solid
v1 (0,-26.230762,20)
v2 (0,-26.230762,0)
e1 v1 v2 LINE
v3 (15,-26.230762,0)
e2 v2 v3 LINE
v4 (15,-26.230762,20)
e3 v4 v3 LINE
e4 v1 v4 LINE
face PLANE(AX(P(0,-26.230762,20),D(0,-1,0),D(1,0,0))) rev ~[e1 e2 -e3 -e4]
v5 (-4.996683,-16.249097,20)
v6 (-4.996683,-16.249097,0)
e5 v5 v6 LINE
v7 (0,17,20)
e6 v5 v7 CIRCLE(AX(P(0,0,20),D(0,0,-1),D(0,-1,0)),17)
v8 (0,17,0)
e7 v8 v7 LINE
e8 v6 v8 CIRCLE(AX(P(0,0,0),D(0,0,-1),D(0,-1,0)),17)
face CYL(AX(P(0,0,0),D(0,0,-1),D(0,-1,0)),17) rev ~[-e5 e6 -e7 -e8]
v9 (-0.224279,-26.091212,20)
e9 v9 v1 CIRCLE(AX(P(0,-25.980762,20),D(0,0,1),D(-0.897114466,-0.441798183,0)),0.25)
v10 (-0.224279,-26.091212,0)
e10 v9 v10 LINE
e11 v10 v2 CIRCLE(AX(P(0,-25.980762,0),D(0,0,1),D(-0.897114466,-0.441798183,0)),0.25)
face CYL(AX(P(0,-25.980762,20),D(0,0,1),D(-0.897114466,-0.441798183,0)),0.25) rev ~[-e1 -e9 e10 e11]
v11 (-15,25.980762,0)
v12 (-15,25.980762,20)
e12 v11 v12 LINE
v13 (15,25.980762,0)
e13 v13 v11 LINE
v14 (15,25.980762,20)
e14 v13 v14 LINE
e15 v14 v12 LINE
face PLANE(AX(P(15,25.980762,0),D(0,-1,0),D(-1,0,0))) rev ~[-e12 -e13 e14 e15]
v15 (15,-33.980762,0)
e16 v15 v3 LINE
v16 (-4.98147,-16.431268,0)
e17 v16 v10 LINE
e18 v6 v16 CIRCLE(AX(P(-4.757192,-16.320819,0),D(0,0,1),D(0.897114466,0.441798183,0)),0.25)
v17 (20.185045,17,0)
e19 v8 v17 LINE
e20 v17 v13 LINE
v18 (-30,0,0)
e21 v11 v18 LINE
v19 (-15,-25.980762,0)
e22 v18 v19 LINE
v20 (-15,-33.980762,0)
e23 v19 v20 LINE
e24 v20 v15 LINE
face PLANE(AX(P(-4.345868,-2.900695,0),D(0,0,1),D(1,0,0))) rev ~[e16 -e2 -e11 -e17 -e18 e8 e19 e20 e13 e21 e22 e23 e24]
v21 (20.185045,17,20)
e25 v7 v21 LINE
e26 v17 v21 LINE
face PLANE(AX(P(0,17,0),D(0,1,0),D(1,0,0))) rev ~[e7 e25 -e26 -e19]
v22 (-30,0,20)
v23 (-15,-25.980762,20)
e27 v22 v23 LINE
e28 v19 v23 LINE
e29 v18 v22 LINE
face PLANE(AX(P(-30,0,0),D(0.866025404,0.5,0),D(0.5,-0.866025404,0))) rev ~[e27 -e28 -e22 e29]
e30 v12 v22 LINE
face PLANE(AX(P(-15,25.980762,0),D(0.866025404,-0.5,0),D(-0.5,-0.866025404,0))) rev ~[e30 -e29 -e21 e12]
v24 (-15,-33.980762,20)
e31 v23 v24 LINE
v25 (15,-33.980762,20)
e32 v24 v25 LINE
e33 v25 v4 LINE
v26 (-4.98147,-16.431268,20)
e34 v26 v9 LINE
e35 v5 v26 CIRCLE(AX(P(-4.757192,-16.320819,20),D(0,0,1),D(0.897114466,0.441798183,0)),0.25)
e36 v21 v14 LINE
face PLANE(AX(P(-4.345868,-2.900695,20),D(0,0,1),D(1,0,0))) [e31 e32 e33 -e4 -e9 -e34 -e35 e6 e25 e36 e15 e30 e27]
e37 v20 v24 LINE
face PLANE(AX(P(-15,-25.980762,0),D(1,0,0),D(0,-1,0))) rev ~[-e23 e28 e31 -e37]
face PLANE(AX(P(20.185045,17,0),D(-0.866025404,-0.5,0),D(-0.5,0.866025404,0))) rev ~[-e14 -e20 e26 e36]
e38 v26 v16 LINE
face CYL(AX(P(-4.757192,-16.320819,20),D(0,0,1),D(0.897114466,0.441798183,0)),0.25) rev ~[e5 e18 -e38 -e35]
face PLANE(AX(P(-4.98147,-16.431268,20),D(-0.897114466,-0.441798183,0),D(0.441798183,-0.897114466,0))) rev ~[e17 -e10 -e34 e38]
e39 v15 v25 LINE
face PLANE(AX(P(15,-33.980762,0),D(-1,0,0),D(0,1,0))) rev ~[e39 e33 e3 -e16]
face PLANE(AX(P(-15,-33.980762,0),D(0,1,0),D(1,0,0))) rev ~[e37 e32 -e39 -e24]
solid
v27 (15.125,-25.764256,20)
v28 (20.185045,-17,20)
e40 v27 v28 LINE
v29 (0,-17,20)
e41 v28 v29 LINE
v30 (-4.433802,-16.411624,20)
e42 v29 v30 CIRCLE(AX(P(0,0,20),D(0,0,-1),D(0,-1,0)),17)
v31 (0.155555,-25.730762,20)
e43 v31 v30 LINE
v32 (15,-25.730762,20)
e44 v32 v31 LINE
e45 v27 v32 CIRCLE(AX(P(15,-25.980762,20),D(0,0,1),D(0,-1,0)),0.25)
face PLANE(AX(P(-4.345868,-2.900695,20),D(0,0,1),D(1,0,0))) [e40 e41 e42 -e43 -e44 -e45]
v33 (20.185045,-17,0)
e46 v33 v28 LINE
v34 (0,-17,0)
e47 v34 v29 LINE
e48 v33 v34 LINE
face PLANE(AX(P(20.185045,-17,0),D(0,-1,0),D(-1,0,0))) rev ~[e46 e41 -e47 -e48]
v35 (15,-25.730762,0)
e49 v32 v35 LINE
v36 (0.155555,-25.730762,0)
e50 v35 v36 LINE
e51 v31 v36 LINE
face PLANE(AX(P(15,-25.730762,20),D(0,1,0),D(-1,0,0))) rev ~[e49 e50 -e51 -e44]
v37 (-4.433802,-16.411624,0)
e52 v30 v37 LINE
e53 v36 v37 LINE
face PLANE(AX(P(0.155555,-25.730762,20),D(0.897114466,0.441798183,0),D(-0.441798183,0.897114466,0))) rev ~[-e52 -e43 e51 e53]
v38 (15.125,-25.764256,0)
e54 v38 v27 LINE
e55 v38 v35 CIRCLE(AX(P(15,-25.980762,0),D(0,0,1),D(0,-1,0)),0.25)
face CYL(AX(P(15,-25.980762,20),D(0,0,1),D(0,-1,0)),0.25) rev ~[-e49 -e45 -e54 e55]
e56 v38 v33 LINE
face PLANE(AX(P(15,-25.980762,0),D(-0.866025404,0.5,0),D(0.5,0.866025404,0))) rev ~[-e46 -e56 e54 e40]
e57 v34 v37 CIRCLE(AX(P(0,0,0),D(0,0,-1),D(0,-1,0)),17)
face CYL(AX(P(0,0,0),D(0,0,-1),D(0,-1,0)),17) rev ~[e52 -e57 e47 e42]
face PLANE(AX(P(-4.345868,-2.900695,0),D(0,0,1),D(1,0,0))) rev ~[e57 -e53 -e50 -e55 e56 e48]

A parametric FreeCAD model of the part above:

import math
import FreeCAD as App
import Part
import Sketcher

V = App.Vector
Q = App.Units.Quantity

doc = App.newDocument("Part")
body = doc.addObject("PartDesign::Body", "Body")
body.AllowCompound = True

sketch1 = body.newObject("Sketcher::SketchObject", "Sketch")
sketch1.AttachmentSupport = (doc.getObject("XY_Plane"), [""])
sketch1.MapMode = "FlatFace"
sketch1.addGeometry(Part.LineSegment(V(15, 26, 0), V(-15, 26, 0)), False)
sketch1.addGeometry(Part.LineSegment(V(-15, 26, 0), V(-30, 0, 0)), False)
sketch1.addGeometry(Part.LineSegment(V(-30, 0, 0), V(-15, -26, 0)), False)
sketch1.addGeometry(Part.LineSegment(V(-15, -26, 0), V(-15, -34, 0)), False)
sketch1.addGeometry(Part.LineSegment(V(-15, -34, 0), V(15, -34, 0)), False)
sketch1.addGeometry(Part.LineSegment(V(15, -34, 0), V(15, -26, 0)), False)
sketch1.addGeometry(Part.LineSegment(V(15, -26, 0), V(20, -17, 0)), False)
sketch1.addGeometry(Part.LineSegment(V(20, -17, 0), V(0, -17, 0)), False)
sketch1.addGeometry(Part.ArcOfCircle(Part.Circle(V(0, 0, 0), V(0, 0, 1), 17), math.radians(90), math.radians(270)), False)
sketch1.addGeometry(Part.LineSegment(V(0, 17, 0), V(20, 17, 0)), False)
sketch1.addGeometry(Part.LineSegment(V(20, 17, 0), V(15, 26, 0)), False)
sketch1.addConstraint(Sketcher.Constraint("Coincident", 0, 2, 1, 1))
sketch1.addConstraint(Sketcher.Constraint("Coincident", 1, 2, 2, 1))
sketch1.addConstraint(Sketcher.Constraint("Coincident", 2, 2, 3, 1))
sketch1.addConstraint(Sketcher.Constraint("Coincident", 3, 2, 4, 1))
sketch1.addConstraint(Sketcher.Constraint("Coincident", 4, 2, 5, 1))
sketch1.addConstraint(Sketcher.Constraint("Coincident", 5, 2, 6, 1))
sketch1.addConstraint(Sketcher.Constraint("Coincident", 6, 2, 7, 1))
sketch1.addConstraint(Sketcher.Constraint("Tangent", 7, 2, 8, 2))
sketch1.addConstraint(Sketcher.Constraint("Tangent", 8, 1, 9, 1))
sketch1.addConstraint(Sketcher.Constraint("Coincident", 9, 2, 10, 1))
sketch1.addConstraint(Sketcher.Constraint("Coincident", 10, 2, 0, 1))
sketch1.addConstraint(Sketcher.Constraint("Horizontal", 0))
sketch1.addConstraint(Sketcher.Constraint("Vertical", 3))
sketch1.addConstraint(Sketcher.Constraint("Horizontal", 4))
sketch1.addConstraint(Sketcher.Constraint("Vertical", 5))
sketch1.addConstraint(Sketcher.Constraint("Horizontal", 7))
sketch1.addConstraint(Sketcher.Constraint("Horizontal", 9))
sketch1.addConstraint(Sketcher.Constraint("Coincident", 8, 3, -1, 1))
sketch1.addConstraint(Sketcher.Constraint("Symmetric", 0, 2, 5, 2, -1, 1))
sketch1.addConstraint(Sketcher.Constraint("Symmetric", 2, 2, 10, 2, -1, 1))
sketch1.addConstraint(Sketcher.Constraint("PointOnObject", 1, 2, -1))
sketch1.addConstraint(Sketcher.Constraint("Parallel", 1, 6))
sketch1.addConstraint(Sketcher.Constraint("Parallel", 2, 10))
sketch1.addConstraint(Sketcher.Constraint("Vertical", 0, 2, 2, 2))
sketch1.addConstraint(Sketcher.Constraint("Radius", 8, 17.0))
sketch1.addConstraint(Sketcher.Constraint("DistanceX", 0, 2, 0, 1, 30.0))
sketch1.addConstraint(Sketcher.Constraint("DistanceY", 3, 2, 3, 1, 8.0))
sketch1.addConstraint(Sketcher.Constraint("Angle", 1, Q("-120 deg")))
sketch1.addConstraint(Sketcher.Constraint("Distance", 1, 30.0))
pad1 = body.newObject("PartDesign::Pad", "Pad")
pad1.Profile = sketch1
pad1.Length = 20

sketch2 = body.newObject("Sketcher::SketchObject", "Sketch001")
sketch2.AttachmentSupport = (doc.getObject("XY_Plane"), [""])
sketch2.MapMode = "FlatFace"
sketch2.AttachmentOffset = App.Placement(V(0, 0, 20), App.Rotation())
sketch2.addGeometry(Part.ArcOfCircle(Part.Circle(V(0, -25.98, 0), V(0, 0, 1), 0.25), math.radians(-154), math.radians(-90)), False)
sketch2.addGeometry(Part.LineSegment(V(0, -26.23, 0), V(15, -26.23, 0)), False)
sketch2.addGeometry(Part.ArcOfCircle(Part.Circle(V(15, -25.98, 0), V(0, 0, 1), 0.25), math.radians(-90), math.radians(90)), False)
sketch2.addGeometry(Part.LineSegment(V(15, -25.73, 0), V(0.16, -25.73, 0)), False)
sketch2.addGeometry(Part.LineSegment(V(0.16, -25.73, 0), V(-4.53, -16.21, 0)), False)
sketch2.addGeometry(Part.ArcOfCircle(Part.Circle(V(-4.76, -16.32, 0), V(0, 0, 1), 0.25), math.radians(26), math.radians(206)), False)
sketch2.addGeometry(Part.LineSegment(V(-4.98, -16.43, 0), V(-0.22, -26.09, 0)), False)
sketch2.addConstraint(Sketcher.Constraint("Tangent", 0, 2, 1, 1))
sketch2.addConstraint(Sketcher.Constraint("Tangent", 1, 2, 2, 1))
sketch2.addConstraint(Sketcher.Constraint("Tangent", 2, 2, 3, 1))
sketch2.addConstraint(Sketcher.Constraint("Coincident", 3, 2, 4, 1))
sketch2.addConstraint(Sketcher.Constraint("Tangent", 4, 2, 5, 1))
sketch2.addConstraint(Sketcher.Constraint("Tangent", 5, 2, 6, 1))
sketch2.addConstraint(Sketcher.Constraint("Tangent", 6, 2, 0, 1))
sketch2.addConstraint(Sketcher.Constraint("Horizontal", 1))
sketch2.addConstraint(Sketcher.Constraint("Horizontal", 3))
sketch2.addConstraint(Sketcher.Constraint("Equal", 0, 2))
sketch2.addConstraint(Sketcher.Constraint("Equal", 2, 5))
sketch2.addConstraint(Sketcher.Constraint("PointOnObject", 0, 3, -2))
sketch2.addConstraint(Sketcher.Constraint("Parallel", 4, 6))
sketch2.addConstraint(Sketcher.Constraint("DistanceX", 1, 1, 1, 2, 15.0))
sketch2.addConstraint(Sketcher.Constraint("Radius", 0, 0.25))
sketch2.addConstraint(Sketcher.Constraint("DistanceY", 5, 2, 4, 2, 0.220899))
sketch2.addConstraint(Sketcher.Constraint("Distance", 4, 10.612239))
sketch2.addConstraint(Sketcher.Constraint("DistanceY", 5, 3, -1, 1, 16.320819))
pocket1 = body.newObject("PartDesign::Pocket", "Pocket")
pocket1.Profile = sketch2
pocket1.Length = 25

doc.recompute()
